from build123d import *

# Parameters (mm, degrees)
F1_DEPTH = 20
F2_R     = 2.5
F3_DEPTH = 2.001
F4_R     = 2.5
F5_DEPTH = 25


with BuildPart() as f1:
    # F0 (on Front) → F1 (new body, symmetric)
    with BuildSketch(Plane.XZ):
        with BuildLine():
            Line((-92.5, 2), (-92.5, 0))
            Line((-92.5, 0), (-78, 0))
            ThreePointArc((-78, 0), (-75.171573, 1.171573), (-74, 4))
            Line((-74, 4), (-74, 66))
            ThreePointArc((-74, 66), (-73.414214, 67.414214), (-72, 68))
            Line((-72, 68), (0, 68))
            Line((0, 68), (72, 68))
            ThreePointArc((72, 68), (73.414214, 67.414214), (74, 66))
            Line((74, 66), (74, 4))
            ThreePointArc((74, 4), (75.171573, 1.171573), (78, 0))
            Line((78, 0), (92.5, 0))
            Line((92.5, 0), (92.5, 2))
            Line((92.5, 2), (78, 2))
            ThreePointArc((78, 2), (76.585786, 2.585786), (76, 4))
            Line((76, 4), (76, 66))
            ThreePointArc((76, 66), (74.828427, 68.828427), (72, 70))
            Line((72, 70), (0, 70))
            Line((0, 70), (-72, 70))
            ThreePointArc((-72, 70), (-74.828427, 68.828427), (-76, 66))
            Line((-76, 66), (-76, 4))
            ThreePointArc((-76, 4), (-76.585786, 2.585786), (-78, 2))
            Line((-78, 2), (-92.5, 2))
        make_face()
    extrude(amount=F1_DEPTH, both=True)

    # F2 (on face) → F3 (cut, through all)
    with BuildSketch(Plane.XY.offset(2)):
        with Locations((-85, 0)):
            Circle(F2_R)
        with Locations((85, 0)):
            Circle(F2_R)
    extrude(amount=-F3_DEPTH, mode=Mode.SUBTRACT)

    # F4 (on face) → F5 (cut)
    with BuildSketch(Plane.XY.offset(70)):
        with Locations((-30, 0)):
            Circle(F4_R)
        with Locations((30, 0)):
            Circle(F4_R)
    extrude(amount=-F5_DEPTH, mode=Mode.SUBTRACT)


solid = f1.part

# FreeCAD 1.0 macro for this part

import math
import FreeCAD as App
import Part
import Sketcher

V = App.Vector

doc = App.newDocument("Part")
params = doc.addObject("Spreadsheet::Sheet", "Params")
for row, (alias, value) in enumerate([
    ("sketch1_radius", "4 mm"),
    ("sketch1_radius2", "1.999999 mm"),
    ("sketch1_width", "144 mm"),
    ("sketch1_height", "62 mm"),
    ("sketch1_width2", "14.5 mm"),
    ("pad1_length", "40 mm"),
    ("sketch2_diameter", "5 mm"),
    ("sketch3_diameter", "5 mm"),
    ("pocket2_length", "25 mm"),
], start=1):
    params.set(f"A{row}", alias)
    params.set(f"B{row}", "=" + value)
    params.setAlias(f"B{row}", alias)

body = doc.addObject("PartDesign::Body", "Body")

# Sketch on XZ plane
sketch1 = body.newObject("Sketcher::SketchObject", "Sketch")
sketch1.AttachmentSupport = (doc.getObject("XZ_Plane"), [""])
sketch1.MapMode = "FlatFace"
sketch1.addGeometry([
    Part.LineSegment(V(-92.5, 2, 0), V(-92.5, 0, 0)),  # 0
    Part.LineSegment(V(-92.5, 0, 0), V(-78, 0, 0)),  # 1
    Part.ArcOfCircle(Part.Circle(V(-78, 4, 0), V(0, 0, 1), 4), math.radians(-90), math.radians(0)),  # 2
    Part.LineSegment(V(-74, 4, 0), V(-74, 66, 0)),  # 3
    Part.ArcOfCircle(Part.Circle(V(-72, 66, 0), V(0, 0, 1), 2), math.radians(90), math.radians(180)),  # 4
    Part.LineSegment(V(-72, 68, 0), V(72, 68, 0)),  # 5
    Part.ArcOfCircle(Part.Circle(V(72, 66, 0), V(0, 0, 1), 2), math.radians(0), math.radians(90)),  # 6
    Part.LineSegment(V(74, 66, 0), V(74, 4, 0)),  # 7
    Part.ArcOfCircle(Part.Circle(V(78, 4, 0), V(0, 0, 1), 4), math.radians(-180), math.radians(-90)),  # 8
    Part.LineSegment(V(78, 0, 0), V(92.5, 0, 0)),  # 9
    Part.LineSegment(V(92.5, 0, 0), V(92.5, 2, 0)),  # 10
    Part.LineSegment(V(92.5, 2, 0), V(78, 2, 0)),  # 11
    Part.ArcOfCircle(Part.Circle(V(78, 4, 0), V(0, 0, 1), 2), math.radians(180), math.radians(270)),  # 12
    Part.LineSegment(V(76, 4, 0), V(76, 66, 0)),  # 13
    Part.ArcOfCircle(Part.Circle(V(72, 66, 0), V(0, 0, 1), 4), math.radians(0), math.radians(90)),  # 14
    Part.LineSegment(V(72, 70, 0), V(-72, 70, 0)),  # 15
    Part.ArcOfCircle(Part.Circle(V(-72, 66, 0), V(0, 0, 1), 4), math.radians(90), math.radians(180)),  # 16
    Part.LineSegment(V(-76, 66, 0), V(-76, 4, 0)),  # 17
    Part.ArcOfCircle(Part.Circle(V(-78, 4, 0), V(0, 0, 1), 2), math.radians(-90), math.radians(0)),  # 18
    Part.LineSegment(V(-78, 2, 0), V(-92.5, 2, 0)),  # 19
], False)
sketch1.addConstraint([
    Sketcher.Constraint("Coincident", 0, 2, 1, 1),
    Sketcher.Constraint("Tangent", 1, 2, 2, 1),
    Sketcher.Constraint("Tangent", 2, 2, 3, 1),
    Sketcher.Constraint("Tangent", 3, 2, 4, 2),
    Sketcher.Constraint("Tangent", 4, 1, 5, 1),
    Sketcher.Constraint("Tangent", 5, 2, 6, 2),
    Sketcher.Constraint("Tangent", 6, 1, 7, 1),
    Sketcher.Constraint("Tangent", 7, 2, 8, 1),
    Sketcher.Constraint("Tangent", 8, 2, 9, 1),
    Sketcher.Constraint("Coincident", 9, 2, 10, 1),
    Sketcher.Constraint("Coincident", 10, 2, 11, 1),
    Sketcher.Constraint("Tangent", 11, 2, 12, 2),
    Sketcher.Constraint("Tangent", 12, 1, 13, 1),
    Sketcher.Constraint("Tangent", 13, 2, 14, 1),
    Sketcher.Constraint("Tangent", 14, 2, 15, 1),
    Sketcher.Constraint("Tangent", 15, 2, 16, 1),
    Sketcher.Constraint("Tangent", 16, 2, 17, 1),
    Sketcher.Constraint("Tangent", 17, 2, 18, 2),
    Sketcher.Constraint("Tangent", 18, 1, 19, 1),
    Sketcher.Constraint("Coincident", 19, 2, 0, 1),
    Sketcher.Constraint("Vertical", 0),
    Sketcher.Constraint("Horizontal", 1),
    Sketcher.Constraint("Vertical", 3),
    Sketcher.Constraint("Horizontal", 5),
    Sketcher.Constraint("Vertical", 7),
    Sketcher.Constraint("Horizontal", 9),
    Sketcher.Constraint("Vertical", 10),
    Sketcher.Constraint("Horizontal", 11),
    Sketcher.Constraint("Vertical", 13),
    Sketcher.Constraint("Horizontal", 15),
    Sketcher.Constraint("Vertical", 17),
    Sketcher.Constraint("Horizontal", 19),
    Sketcher.Constraint("Coincident", 12, 3, 8, 3),
    Sketcher.Constraint("Coincident", 14, 3, 6, 3),
    Sketcher.Constraint("Coincident", 16, 3, 4, 3),
    Sketcher.Constraint("Coincident", 18, 3, 2, 3),
    Sketcher.Constraint("Equal", 4, 6),
    Sketcher.Constraint("Equal", 2, 8),
    Sketcher.Constraint("Equal", 6, 12),
    Sketcher.Constraint("Symmetric", 1, 2, 8, 2, -1, 1),
    Sketcher.Constraint("Symmetric", 0, 2, 9, 2, -2),
    Sketcher.Constraint("Radius", 2, 4.0),
    Sketcher.Constraint("Radius", 4, 1.999999),
    Sketcher.Constraint("DistanceX", 5, 1, 5, 2, 144.0),
    Sketcher.Constraint("DistanceY", 3, 1, 3, 2, 62.0),
    Sketcher.Constraint("DistanceX", 1, 1, 1, 2, 14.5),
])
sketch1.setExpression("Constraints[41]", "Params.sketch1_radius")
sketch1.setExpression("Constraints[42]", "Params.sketch1_radius2")
sketch1.setExpression("Constraints[43]", "Params.sketch1_width")
sketch1.setExpression("Constraints[44]", "Params.sketch1_height")
sketch1.setExpression("Constraints[45]", "Params.sketch1_width2")
pad1 = body.newObject("PartDesign::Pad", "Pad")
pad1.Profile = sketch1
pad1.setExpression("Length", "Params.pad1_length")
pad1.Midplane = True

# Sketch on XY plane
sketch2 = body.newObject("Sketcher::SketchObject", "Sketch001")
sketch2.AttachmentSupport = (doc.getObject("XY_Plane"), [""])
sketch2.MapMode = "FlatFace"
sketch2.AttachmentOffset = App.Placement(V(0, 0, 2), App.Rotation())
sketch2.addGeometry([
    Part.Circle(V(-85, 0, 0), V(0, 0, 1), 2.5),
    Part.Circle(V(85, 0, 0), V(0, 0, 1), 2.5),
], False)
sketch2.addConstraint([
    Sketcher.Constraint("Equal", 0, 1),
    Sketcher.Constraint("Symmetric", 0, 3, 1, 3, -1, 1),
    Sketcher.Constraint("PointOnObject", 0, 3, -1),
    Sketcher.Constraint("Diameter", 0, 5.0),
    Sketcher.Constraint("DistanceX", 0, 3, -1, 1, 85.0),
])
sketch2.setExpression("Constraints[3]", "Params.sketch2_diameter")
pocket1 = body.newObject("PartDesign::Pocket", "Pocket")
pocket1.Profile = sketch2
pocket1.Type = "ThroughAll"

# Sketch on XY plane
sketch3 = body.newObject("Sketcher::SketchObject", "Sketch002")
sketch3.AttachmentSupport = (doc.getObject("XY_Plane"), [""])
sketch3.MapMode = "FlatFace"
sketch3.AttachmentOffset = App.Placement(V(0, 0, 70), App.Rotation())
sketch3.addGeometry([
    Part.Circle(V(-30, 0, 0), V(0, 0, 1), 2.5),
    Part.Circle(V(30, 0, 0), V(0, 0, 1), 2.5),
], False)
sketch3.addConstraint([
    Sketcher.Constraint("Equal", 0, 1),
    Sketcher.Constraint("Symmetric", 0, 3, 1, 3, -1, 1),
    Sketcher.Constraint("PointOnObject", 0, 3, -1),
    Sketcher.Constraint("Diameter", 0, 5.0),
    Sketcher.Constraint("DistanceX", 0, 3, -1, 1, 30.0),
])
sketch3.setExpression("Constraints[3]", "Params.sketch3_diameter")
pocket2 = body.newObject("PartDesign::Pocket", "Pocket001")
pocket2.Profile = sketch3
pocket2.setExpression("Length", "Params.pocket2_length")

doc.recompute()
